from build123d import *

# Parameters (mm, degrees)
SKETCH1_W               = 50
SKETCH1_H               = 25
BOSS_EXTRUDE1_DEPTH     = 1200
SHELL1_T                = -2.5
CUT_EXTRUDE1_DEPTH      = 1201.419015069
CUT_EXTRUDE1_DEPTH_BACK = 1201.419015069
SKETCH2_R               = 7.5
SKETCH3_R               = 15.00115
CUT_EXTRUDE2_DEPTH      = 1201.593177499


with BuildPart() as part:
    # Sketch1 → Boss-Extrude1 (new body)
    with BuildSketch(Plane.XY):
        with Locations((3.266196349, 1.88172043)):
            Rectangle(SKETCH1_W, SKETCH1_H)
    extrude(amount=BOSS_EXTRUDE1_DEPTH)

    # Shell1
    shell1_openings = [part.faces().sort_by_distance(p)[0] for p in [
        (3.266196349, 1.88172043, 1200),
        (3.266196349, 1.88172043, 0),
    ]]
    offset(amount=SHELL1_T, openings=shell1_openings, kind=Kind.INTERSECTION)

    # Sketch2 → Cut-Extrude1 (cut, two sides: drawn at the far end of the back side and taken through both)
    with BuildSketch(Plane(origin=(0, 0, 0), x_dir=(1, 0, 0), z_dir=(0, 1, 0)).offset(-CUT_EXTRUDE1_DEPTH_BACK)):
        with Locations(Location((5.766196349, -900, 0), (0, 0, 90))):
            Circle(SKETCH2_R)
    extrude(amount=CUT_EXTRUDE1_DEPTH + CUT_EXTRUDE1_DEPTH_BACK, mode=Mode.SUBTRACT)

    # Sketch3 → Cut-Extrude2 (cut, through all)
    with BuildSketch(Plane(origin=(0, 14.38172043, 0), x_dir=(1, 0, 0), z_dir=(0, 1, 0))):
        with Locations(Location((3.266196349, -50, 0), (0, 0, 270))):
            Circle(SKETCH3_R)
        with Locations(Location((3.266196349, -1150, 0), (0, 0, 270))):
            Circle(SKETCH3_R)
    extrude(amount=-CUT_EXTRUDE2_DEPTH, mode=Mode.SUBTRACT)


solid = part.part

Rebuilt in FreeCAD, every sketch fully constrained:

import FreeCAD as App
import Part
import Sketcher
from FreeCAD import Vector
Q = App.Units.Quantity


def faces_at(feature, points):
    """Names of the faces that lie closest to the given points."""
    faces = feature.Shape.Faces
    near = lambda p: min(range(len(faces)), key=lambda i: faces[i].distToShape(Part.Vertex(*p))[0])
    return sorted({f"Face{near(p) + 1}" for p in points})

doc = App.newDocument("Part")
body = doc.addObject("PartDesign::Body", "Body")

# Sketch on XY plane
sketch1 = body.newObject("Sketcher::SketchObject", "Sketch")
sketch1.AttachmentSupport = (doc.getObject("XY_Plane"), [""])
sketch1.MapMode = "FlatFace"
sketch1.addGeometry([
    Part.LineSegment(Vector(-22, 14, 0), Vector(-22, -11, 0)),
    Part.LineSegment(Vector(-22, -11, 0), Vector(28, -11, 0)),
    Part.LineSegment(Vector(28, -11, 0), Vector(28, 14, 0)),
    Part.LineSegment(Vector(28, 14, 0), Vector(-22, 14, 0)),
], False)
sketch1.addConstraint([
    Sketcher.Constraint("Coincident", 0, 2, 1, 1),
    Sketcher.Constraint("Coincident", 1, 2, 2, 1),
    Sketcher.Constraint("Coincident", 2, 2, 3, 1),
    Sketcher.Constraint("Coincident", 3, 2, 0, 1),
    Sketcher.Constraint("Vertical", 0),
    Sketcher.Constraint("Horizontal", 1),
    Sketcher.Constraint("Vertical", 2),
    Sketcher.Constraint("Horizontal", 3),
    Sketcher.Constraint("DistanceX", 1, 1, 1, 2, Q("50 mm")),
    Sketcher.Constraint("DistanceY", 0, 2, 0, 1, Q("25 mm")),
    Sketcher.Constraint("DistanceY", 0, 2, -1, 1, Q("10.61828 mm")),
    Sketcher.Constraint("DistanceX", 0, 2, -1, 1, Q("21.733804 mm")),
])
pad1 = body.newObject("PartDesign::Pad", "Pad")
pad1.Profile = sketch1
pad1.Length = 1200
doc.recompute()

thickness = body.newObject("PartDesign::Thickness", "Thickness")
thickness.Base = (pad1, faces_at(pad1, [(3.266, 1.882, 1200), (3.266, 1.882, 0)]))
thickness.Value = 2.5
thickness.Reversed = True
thickness.Join = "Intersection"

# Sketch on XZ plane
sketch2 = body.newObject("Sketcher::SketchObject", "Sketch001")
sketch2.AttachmentSupport = (doc.getObject("XZ_Plane"), [""])
sketch2.MapMode = "FlatFace"
sketch2.addGeometry(Part.Circle(Vector(6, 900, 0), Vector(0, 0, 1), 8), False)
sketch2.addConstraint([
    Sketcher.Constraint("Diameter", 0, Q("15 mm")),
    Sketcher.Constraint("DistanceY", -1, 1, 0, 3, Q("900 mm")),
    Sketcher.Constraint("DistanceX", -1, 1, 0, 3, Q("5.766196 mm")),
])
pocket1 = body.newObject("PartDesign::Pocket", "Pocket")
pocket1.Profile = sketch2
pocket1.Type = "ThroughAll"
pocket1.Midplane = True

# Sketch on XZ plane
sketch3 = body.newObject("Sketcher::SketchObject", "Sketch002")
sketch3.AttachmentSupport = (doc.getObject("XZ_Plane"), [""])
sketch3.MapMode = "FlatFace"
sketch3.AttachmentOffset = App.Placement(Vector(0, 0, -14.38172), App.Rotation())
sketch3.addGeometry([
    Part.Circle(Vector(3, 50, 0), Vector(0, 0, 1), 15),
    Part.Circle(Vector(3, 1150, 0), Vector(0, 0, 1), 15),
], False)
sketch3.addConstraint([
    Sketcher.Constraint("Equal", 0, 1),
    Sketcher.Constraint("Vertical", 0, 3, 1, 3),
    Sketcher.Constraint("DistanceY", -1, 1, 0, 3, Q("50 mm")),
    Sketcher.Constraint("DistanceY", -1, 1, 1, 3, Q("1150 mm")),
    Sketcher.Constraint("Diameter", 0, Q("30.0023 mm")),
    Sketcher.Constraint("DistanceX", -1, 1, 0, 3, Q("3.266196 mm")),
])
pocket2 = body.newObject("PartDesign::Pocket", "Pocket001")
pocket2.Profile = sketch3
pocket2.Type = "ThroughAll"
pocket2.Reversed = True

doc.recompute()
